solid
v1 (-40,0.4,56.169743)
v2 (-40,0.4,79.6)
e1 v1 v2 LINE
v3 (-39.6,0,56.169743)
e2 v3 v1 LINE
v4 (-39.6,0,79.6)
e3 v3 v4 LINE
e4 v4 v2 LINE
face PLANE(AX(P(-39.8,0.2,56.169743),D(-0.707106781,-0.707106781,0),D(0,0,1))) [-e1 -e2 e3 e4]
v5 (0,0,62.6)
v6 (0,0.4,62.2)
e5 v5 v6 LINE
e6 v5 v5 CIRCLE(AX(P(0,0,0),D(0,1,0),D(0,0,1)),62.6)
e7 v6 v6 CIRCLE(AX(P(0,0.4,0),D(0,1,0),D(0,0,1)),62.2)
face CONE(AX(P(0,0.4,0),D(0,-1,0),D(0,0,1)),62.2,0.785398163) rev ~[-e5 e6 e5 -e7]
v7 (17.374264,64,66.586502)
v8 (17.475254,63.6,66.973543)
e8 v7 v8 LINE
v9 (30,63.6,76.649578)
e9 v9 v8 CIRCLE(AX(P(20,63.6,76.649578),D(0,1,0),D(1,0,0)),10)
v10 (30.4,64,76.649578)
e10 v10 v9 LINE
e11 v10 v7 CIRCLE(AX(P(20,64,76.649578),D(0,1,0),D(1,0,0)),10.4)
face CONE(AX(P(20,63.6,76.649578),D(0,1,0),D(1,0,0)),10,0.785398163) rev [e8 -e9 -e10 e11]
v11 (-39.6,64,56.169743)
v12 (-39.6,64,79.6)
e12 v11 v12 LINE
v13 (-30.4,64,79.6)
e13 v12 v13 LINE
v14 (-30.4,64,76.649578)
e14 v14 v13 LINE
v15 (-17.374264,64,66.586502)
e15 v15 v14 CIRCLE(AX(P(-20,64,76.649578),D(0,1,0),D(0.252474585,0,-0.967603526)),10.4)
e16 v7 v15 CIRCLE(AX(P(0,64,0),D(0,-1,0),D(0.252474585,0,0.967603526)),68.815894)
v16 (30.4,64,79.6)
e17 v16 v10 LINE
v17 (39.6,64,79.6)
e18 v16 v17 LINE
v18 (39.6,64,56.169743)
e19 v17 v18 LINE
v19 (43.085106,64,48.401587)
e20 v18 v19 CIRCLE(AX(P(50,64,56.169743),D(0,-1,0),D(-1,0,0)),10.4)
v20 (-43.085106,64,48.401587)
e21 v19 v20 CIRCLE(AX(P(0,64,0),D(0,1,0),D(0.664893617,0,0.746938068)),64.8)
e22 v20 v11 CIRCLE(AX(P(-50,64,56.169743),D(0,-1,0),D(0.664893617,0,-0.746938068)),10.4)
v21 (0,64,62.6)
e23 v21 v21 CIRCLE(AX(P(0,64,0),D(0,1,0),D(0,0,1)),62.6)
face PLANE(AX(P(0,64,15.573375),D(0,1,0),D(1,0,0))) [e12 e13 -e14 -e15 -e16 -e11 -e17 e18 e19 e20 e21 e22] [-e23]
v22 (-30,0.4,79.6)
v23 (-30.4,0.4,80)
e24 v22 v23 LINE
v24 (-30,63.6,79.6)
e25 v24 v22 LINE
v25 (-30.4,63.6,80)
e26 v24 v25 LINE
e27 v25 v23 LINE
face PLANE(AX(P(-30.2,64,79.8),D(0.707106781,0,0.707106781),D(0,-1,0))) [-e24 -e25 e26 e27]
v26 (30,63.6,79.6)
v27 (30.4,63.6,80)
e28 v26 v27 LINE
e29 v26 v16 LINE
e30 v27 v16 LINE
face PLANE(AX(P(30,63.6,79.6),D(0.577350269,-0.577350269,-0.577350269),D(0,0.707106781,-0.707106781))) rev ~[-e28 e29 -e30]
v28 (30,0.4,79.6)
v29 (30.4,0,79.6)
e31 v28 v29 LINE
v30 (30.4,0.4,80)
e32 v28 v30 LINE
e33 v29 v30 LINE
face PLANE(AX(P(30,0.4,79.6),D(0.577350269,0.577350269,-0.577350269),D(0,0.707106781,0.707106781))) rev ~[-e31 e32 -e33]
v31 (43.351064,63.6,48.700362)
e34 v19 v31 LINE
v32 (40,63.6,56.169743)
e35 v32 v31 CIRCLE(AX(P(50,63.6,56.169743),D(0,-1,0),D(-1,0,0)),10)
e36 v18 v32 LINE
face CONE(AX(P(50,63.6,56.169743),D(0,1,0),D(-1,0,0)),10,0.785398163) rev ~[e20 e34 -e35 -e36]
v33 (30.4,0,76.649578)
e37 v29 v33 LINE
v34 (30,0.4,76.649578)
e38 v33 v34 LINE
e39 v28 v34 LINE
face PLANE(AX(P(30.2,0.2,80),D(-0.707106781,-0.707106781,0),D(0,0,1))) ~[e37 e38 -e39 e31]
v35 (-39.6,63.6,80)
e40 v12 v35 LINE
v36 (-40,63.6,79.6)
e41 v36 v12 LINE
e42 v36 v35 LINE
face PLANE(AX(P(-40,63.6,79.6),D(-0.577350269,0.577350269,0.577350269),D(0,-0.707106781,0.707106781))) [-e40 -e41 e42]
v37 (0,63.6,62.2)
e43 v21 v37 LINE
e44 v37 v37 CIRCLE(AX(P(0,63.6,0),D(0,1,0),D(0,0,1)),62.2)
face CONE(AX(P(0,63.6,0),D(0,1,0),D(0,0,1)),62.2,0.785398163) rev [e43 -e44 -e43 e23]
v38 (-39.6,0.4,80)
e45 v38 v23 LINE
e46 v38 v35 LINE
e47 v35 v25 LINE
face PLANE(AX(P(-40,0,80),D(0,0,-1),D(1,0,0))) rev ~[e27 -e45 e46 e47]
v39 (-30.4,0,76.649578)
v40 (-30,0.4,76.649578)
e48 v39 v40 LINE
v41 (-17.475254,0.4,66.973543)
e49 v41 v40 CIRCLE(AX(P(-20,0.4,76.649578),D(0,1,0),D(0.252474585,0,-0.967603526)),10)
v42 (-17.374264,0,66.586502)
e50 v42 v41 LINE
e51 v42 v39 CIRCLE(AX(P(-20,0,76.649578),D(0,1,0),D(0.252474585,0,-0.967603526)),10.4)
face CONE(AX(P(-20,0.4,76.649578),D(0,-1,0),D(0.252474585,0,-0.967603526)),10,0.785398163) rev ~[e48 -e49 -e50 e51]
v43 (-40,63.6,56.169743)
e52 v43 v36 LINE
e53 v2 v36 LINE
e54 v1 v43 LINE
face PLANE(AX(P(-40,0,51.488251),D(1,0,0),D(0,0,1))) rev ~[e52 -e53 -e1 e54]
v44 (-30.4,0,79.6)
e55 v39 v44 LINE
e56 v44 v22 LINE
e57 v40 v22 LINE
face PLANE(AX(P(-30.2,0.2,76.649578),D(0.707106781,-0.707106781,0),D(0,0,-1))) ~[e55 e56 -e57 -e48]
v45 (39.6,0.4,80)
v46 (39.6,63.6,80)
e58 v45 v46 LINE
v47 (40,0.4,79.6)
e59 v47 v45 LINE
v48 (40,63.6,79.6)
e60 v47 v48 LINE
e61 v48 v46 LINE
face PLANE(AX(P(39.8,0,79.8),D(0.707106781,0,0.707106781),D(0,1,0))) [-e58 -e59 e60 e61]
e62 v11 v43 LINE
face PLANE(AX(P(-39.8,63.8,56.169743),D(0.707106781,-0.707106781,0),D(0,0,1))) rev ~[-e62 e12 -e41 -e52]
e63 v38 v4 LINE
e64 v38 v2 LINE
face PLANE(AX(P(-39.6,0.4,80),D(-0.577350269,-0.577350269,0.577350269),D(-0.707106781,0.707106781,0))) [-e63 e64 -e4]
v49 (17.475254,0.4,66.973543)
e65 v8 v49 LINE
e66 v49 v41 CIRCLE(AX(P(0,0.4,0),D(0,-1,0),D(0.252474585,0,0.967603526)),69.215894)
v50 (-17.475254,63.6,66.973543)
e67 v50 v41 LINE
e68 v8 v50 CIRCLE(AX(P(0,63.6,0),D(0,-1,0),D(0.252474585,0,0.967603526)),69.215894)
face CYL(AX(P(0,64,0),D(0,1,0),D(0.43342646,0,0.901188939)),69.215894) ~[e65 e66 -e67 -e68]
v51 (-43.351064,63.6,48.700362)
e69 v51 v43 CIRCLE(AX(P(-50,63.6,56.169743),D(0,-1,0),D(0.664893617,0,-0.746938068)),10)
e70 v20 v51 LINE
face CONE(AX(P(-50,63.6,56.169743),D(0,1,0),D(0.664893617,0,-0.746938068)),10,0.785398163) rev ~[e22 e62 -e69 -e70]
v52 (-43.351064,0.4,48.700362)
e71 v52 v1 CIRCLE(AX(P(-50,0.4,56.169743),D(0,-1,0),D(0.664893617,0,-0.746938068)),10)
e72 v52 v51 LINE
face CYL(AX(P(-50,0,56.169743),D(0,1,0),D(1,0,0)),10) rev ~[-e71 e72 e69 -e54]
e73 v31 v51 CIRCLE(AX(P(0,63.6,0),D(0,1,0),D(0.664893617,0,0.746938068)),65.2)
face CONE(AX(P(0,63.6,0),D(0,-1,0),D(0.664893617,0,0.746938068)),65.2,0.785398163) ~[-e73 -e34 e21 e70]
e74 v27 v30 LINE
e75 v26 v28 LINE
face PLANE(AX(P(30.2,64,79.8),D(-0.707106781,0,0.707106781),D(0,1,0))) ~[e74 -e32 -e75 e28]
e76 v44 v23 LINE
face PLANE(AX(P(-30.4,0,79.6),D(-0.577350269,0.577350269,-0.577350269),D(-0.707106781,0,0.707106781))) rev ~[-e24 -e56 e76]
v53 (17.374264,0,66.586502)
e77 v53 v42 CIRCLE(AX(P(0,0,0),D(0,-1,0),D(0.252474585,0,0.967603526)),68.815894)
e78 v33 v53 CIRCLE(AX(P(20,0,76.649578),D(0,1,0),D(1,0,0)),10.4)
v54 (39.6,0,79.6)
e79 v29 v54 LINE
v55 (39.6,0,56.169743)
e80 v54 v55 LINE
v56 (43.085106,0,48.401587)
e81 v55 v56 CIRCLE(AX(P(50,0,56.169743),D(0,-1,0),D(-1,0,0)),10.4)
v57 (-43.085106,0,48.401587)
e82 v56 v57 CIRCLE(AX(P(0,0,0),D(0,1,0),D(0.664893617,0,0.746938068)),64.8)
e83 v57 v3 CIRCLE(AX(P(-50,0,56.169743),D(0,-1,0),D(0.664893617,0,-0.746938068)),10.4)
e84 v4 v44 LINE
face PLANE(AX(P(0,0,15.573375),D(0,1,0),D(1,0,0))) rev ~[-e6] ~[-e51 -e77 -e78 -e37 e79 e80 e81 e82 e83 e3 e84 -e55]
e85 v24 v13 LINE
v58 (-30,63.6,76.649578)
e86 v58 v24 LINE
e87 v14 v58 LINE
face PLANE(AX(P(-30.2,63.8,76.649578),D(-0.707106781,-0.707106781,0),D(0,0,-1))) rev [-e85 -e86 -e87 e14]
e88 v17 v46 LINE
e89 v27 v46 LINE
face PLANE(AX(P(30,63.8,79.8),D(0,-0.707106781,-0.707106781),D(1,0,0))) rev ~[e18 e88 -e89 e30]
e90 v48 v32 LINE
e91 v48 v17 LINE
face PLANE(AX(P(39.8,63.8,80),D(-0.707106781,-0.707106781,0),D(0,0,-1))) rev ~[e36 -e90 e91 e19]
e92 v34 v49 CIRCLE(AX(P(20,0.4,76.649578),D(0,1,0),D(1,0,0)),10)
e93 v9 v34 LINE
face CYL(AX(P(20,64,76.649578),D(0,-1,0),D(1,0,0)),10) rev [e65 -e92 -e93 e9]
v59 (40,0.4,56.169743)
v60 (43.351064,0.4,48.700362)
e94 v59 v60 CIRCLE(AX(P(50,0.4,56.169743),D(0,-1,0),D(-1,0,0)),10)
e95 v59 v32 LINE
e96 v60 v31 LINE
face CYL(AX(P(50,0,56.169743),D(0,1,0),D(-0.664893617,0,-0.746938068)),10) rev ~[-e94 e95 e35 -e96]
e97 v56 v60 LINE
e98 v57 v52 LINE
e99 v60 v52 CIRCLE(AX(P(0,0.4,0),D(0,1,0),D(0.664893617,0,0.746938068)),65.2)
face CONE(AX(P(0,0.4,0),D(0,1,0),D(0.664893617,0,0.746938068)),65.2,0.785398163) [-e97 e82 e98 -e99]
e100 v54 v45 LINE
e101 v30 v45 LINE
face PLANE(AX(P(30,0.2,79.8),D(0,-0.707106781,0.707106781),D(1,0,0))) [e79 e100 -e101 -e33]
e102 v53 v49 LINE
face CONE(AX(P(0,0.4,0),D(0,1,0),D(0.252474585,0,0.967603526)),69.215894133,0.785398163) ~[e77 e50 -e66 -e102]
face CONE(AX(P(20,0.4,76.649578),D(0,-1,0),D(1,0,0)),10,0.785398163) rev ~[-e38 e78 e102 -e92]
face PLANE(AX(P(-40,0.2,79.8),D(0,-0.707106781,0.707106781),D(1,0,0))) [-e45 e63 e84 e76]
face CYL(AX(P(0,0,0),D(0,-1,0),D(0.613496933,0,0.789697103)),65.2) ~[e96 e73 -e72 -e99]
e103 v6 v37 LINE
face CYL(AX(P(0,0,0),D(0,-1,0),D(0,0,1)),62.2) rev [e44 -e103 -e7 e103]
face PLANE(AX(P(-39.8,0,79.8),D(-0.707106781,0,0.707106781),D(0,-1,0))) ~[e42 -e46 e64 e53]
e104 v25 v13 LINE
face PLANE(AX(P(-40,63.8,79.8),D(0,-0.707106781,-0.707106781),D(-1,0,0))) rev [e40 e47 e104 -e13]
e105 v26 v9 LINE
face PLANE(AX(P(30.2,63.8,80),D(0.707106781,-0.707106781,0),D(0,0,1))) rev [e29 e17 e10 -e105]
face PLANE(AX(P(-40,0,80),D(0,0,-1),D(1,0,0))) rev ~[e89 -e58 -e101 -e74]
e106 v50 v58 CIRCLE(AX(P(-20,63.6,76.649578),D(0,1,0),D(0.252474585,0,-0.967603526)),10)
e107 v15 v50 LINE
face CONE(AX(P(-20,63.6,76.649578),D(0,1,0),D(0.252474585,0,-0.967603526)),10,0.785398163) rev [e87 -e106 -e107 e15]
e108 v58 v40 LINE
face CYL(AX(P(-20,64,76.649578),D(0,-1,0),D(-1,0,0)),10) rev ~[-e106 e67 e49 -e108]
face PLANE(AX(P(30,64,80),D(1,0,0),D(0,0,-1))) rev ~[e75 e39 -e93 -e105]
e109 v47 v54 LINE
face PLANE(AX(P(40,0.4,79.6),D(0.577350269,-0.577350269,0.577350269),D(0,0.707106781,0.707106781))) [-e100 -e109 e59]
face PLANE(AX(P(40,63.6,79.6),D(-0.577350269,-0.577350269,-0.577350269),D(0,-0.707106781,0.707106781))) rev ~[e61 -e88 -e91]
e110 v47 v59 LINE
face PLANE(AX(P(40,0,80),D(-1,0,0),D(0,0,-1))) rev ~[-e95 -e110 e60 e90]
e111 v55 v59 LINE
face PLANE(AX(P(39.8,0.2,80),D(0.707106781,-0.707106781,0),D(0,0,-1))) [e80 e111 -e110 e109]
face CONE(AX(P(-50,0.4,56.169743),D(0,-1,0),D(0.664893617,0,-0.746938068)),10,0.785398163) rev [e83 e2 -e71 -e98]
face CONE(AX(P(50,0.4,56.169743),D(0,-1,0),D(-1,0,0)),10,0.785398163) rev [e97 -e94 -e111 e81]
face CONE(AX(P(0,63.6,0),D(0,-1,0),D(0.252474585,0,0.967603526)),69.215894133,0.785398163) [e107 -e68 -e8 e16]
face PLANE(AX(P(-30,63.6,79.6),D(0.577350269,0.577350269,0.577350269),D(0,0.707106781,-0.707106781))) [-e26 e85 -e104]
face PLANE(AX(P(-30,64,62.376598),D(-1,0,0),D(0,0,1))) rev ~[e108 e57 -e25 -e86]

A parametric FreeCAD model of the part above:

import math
import FreeCAD as App
import Part
import Sketcher

V = App.Vector
Q = App.Units.Quantity


def edges_at(feature, points):
    """Names of the edges that pass closest to the given points."""
    edges = feature.Shape.Edges
    near = lambda p: min(range(len(edges)), key=lambda i: edges[i].distToShape(Part.Vertex(*p))[0])
    return sorted({f"Edge{near(p) + 1}" for p in points})

doc = App.newDocument("Part")
params = doc.addObject("Spreadsheet::Sheet", "Params")
for row, (alias, value) in enumerate([
    ("sketch1_diameter", "124.4 mm"),
    ("sketch1_radius", "65.2 mm"),
    ("sketch1_width", "80 mm"),
    ("pad1_length", "64 mm"),
    ("sketch2_width", "60 mm"),
    ("fillet_radius", "10 mm"),
    ("chamfer_size", "0.4 mm"),
], start=1):
    params.set(f"A{row}", alias)
    params.set(f"B{row}", "=" + value)
    params.setAlias(f"B{row}", alias)

body = doc.addObject("PartDesign::Body", "Body")

# Sketch on XZ plane
sketch1 = body.newObject("Sketcher::SketchObject", "Sketch")
sketch1.AttachmentSupport = (doc.getObject("XZ_Plane"), [""])
sketch1.MapMode = "FlatFace"
sketch1.addGeometry([
    Part.LineSegment(V(-40, 51, 0), V(-40, 80, 0)),  # 0
    Part.LineSegment(V(-40, 80, 0), V(40, 80, 0)),  # 1
    Part.LineSegment(V(40, 80, 0), V(40, 51, 0)),  # 2
    Part.ArcOfCircle(Part.Circle(V(0, 0, 0), V(0, 0, 1), 65), math.radians(128), math.radians(412)),  # 3
    Part.Circle(V(0, 0, 0), V(0, 0, 1), 62),  # 4
], False)
sketch1.addConstraint([
    Sketcher.Constraint("Coincident", 0, 2, 1, 1),
    Sketcher.Constraint("Coincident", 1, 2, 2, 1),
    Sketcher.Constraint("Coincident", 2, 2, 3, 2),
    Sketcher.Constraint("Coincident", 3, 1, 0, 1),
    Sketcher.Constraint("Vertical", 0),
    Sketcher.Constraint("Horizontal", 1),
    Sketcher.Constraint("Vertical", 2),
    Sketcher.Constraint("Coincident", 3, 3, -1, 1),
    Sketcher.Constraint("Coincident", 4, 3, -1, 1),
    Sketcher.Constraint("Horizontal", 2, 2, 3, 1),
    Sketcher.Constraint("Diameter", 4, Q("124.4 mm")),
    Sketcher.Constraint("Radius", 3, Q("65.2 mm")),
    Sketcher.Constraint("DistanceX", 1, 1, 1, 2, Q("80 mm")),
    Sketcher.Constraint("DistanceY", -1, 1, 0, 2, Q("80 mm")),
])
sketch1.setExpression("Constraints[10]", "Params.sketch1_diameter")
sketch1.setExpression("Constraints[11]", "Params.sketch1_radius")
sketch1.setExpression("Constraints[12]", "Params.sketch1_width")
pad1 = body.newObject("PartDesign::Pad", "Pad")
pad1.Profile = sketch1
pad1.setExpression("Length", "Params.pad1_length")
pad1.Reversed = True

# Sketch on XZ plane
sketch2 = body.newObject("Sketcher::SketchObject", "Sketch001")
sketch2.AttachmentSupport = (doc.getObject("XZ_Plane"), [""])
sketch2.MapMode = "FlatFace"
sketch2.AttachmentOffset = App.Placement(V(0, 0, -64), App.Rotation())
sketch2.addGeometry([
    Part.LineSegment(V(-30, 80, 0), V(30, 80, 0)),
    Part.LineSegment(V(30, 80, 0), V(30, 62, 0)),
    Part.ArcOfCircle(Part.Circle(V(0, 0, 0), V(0, 0, 1), 69), math.radians(64), math.radians(116)),
    Part.LineSegment(V(-30, 62, 0), V(-30, 80, 0)),
], False)
sketch2.addConstraint([
    Sketcher.Constraint("Coincident", 0, 2, 1, 1),
    Sketcher.Constraint("Coincident", 1, 2, 2, 1),
    Sketcher.Constraint("Coincident", 2, 2, 3, 1),
    Sketcher.Constraint("Coincident", 3, 2, 0, 1),
    Sketcher.Constraint("Horizontal", 0),
    Sketcher.Constraint("Vertical", 1),
    Sketcher.Constraint("Vertical", 3),
    Sketcher.Constraint("Coincident", 2, 3, -1, 1),
    Sketcher.Constraint("Horizontal", 1, 2, 2, 2),
    Sketcher.Constraint("DistanceX", 0, 1, 0, 2, Q("60 mm")),
    Sketcher.Constraint("DistanceY", -1, 1, 0, 2, Q("80 mm")),
    Sketcher.Constraint("DistanceY", 1, 2, 1, 1, Q("17.623402 mm")),
])
sketch2.setExpression("Constraints[9]", "Params.sketch2_width")
pocket1 = body.newObject("PartDesign::Pocket", "Pocket")
pocket1.Profile = sketch2
pocket1.Type = "ThroughAll"
pocket1.Reversed = True
doc.recompute()

fillet = body.newObject("PartDesign::Fillet", "Fillet")
fillet.Base = (pocket1, edges_at(pocket1, [
    (-30, 32, 62.377),
    (30, 32, 62.377),
    (-40, 32, 51.488),
    (40, 32, 51.488),
]))
fillet.setExpression("Radius", "Params.fillet_radius")
doc.recompute()

chamfer = body.newObject("PartDesign::Chamfer", "Chamfer")
chamfer.Base = (fillet, ["Edge1"])
chamfer.UseAllEdges = True
chamfer.setExpression("Size", "Params.chamfer_size")

doc.recompute()
